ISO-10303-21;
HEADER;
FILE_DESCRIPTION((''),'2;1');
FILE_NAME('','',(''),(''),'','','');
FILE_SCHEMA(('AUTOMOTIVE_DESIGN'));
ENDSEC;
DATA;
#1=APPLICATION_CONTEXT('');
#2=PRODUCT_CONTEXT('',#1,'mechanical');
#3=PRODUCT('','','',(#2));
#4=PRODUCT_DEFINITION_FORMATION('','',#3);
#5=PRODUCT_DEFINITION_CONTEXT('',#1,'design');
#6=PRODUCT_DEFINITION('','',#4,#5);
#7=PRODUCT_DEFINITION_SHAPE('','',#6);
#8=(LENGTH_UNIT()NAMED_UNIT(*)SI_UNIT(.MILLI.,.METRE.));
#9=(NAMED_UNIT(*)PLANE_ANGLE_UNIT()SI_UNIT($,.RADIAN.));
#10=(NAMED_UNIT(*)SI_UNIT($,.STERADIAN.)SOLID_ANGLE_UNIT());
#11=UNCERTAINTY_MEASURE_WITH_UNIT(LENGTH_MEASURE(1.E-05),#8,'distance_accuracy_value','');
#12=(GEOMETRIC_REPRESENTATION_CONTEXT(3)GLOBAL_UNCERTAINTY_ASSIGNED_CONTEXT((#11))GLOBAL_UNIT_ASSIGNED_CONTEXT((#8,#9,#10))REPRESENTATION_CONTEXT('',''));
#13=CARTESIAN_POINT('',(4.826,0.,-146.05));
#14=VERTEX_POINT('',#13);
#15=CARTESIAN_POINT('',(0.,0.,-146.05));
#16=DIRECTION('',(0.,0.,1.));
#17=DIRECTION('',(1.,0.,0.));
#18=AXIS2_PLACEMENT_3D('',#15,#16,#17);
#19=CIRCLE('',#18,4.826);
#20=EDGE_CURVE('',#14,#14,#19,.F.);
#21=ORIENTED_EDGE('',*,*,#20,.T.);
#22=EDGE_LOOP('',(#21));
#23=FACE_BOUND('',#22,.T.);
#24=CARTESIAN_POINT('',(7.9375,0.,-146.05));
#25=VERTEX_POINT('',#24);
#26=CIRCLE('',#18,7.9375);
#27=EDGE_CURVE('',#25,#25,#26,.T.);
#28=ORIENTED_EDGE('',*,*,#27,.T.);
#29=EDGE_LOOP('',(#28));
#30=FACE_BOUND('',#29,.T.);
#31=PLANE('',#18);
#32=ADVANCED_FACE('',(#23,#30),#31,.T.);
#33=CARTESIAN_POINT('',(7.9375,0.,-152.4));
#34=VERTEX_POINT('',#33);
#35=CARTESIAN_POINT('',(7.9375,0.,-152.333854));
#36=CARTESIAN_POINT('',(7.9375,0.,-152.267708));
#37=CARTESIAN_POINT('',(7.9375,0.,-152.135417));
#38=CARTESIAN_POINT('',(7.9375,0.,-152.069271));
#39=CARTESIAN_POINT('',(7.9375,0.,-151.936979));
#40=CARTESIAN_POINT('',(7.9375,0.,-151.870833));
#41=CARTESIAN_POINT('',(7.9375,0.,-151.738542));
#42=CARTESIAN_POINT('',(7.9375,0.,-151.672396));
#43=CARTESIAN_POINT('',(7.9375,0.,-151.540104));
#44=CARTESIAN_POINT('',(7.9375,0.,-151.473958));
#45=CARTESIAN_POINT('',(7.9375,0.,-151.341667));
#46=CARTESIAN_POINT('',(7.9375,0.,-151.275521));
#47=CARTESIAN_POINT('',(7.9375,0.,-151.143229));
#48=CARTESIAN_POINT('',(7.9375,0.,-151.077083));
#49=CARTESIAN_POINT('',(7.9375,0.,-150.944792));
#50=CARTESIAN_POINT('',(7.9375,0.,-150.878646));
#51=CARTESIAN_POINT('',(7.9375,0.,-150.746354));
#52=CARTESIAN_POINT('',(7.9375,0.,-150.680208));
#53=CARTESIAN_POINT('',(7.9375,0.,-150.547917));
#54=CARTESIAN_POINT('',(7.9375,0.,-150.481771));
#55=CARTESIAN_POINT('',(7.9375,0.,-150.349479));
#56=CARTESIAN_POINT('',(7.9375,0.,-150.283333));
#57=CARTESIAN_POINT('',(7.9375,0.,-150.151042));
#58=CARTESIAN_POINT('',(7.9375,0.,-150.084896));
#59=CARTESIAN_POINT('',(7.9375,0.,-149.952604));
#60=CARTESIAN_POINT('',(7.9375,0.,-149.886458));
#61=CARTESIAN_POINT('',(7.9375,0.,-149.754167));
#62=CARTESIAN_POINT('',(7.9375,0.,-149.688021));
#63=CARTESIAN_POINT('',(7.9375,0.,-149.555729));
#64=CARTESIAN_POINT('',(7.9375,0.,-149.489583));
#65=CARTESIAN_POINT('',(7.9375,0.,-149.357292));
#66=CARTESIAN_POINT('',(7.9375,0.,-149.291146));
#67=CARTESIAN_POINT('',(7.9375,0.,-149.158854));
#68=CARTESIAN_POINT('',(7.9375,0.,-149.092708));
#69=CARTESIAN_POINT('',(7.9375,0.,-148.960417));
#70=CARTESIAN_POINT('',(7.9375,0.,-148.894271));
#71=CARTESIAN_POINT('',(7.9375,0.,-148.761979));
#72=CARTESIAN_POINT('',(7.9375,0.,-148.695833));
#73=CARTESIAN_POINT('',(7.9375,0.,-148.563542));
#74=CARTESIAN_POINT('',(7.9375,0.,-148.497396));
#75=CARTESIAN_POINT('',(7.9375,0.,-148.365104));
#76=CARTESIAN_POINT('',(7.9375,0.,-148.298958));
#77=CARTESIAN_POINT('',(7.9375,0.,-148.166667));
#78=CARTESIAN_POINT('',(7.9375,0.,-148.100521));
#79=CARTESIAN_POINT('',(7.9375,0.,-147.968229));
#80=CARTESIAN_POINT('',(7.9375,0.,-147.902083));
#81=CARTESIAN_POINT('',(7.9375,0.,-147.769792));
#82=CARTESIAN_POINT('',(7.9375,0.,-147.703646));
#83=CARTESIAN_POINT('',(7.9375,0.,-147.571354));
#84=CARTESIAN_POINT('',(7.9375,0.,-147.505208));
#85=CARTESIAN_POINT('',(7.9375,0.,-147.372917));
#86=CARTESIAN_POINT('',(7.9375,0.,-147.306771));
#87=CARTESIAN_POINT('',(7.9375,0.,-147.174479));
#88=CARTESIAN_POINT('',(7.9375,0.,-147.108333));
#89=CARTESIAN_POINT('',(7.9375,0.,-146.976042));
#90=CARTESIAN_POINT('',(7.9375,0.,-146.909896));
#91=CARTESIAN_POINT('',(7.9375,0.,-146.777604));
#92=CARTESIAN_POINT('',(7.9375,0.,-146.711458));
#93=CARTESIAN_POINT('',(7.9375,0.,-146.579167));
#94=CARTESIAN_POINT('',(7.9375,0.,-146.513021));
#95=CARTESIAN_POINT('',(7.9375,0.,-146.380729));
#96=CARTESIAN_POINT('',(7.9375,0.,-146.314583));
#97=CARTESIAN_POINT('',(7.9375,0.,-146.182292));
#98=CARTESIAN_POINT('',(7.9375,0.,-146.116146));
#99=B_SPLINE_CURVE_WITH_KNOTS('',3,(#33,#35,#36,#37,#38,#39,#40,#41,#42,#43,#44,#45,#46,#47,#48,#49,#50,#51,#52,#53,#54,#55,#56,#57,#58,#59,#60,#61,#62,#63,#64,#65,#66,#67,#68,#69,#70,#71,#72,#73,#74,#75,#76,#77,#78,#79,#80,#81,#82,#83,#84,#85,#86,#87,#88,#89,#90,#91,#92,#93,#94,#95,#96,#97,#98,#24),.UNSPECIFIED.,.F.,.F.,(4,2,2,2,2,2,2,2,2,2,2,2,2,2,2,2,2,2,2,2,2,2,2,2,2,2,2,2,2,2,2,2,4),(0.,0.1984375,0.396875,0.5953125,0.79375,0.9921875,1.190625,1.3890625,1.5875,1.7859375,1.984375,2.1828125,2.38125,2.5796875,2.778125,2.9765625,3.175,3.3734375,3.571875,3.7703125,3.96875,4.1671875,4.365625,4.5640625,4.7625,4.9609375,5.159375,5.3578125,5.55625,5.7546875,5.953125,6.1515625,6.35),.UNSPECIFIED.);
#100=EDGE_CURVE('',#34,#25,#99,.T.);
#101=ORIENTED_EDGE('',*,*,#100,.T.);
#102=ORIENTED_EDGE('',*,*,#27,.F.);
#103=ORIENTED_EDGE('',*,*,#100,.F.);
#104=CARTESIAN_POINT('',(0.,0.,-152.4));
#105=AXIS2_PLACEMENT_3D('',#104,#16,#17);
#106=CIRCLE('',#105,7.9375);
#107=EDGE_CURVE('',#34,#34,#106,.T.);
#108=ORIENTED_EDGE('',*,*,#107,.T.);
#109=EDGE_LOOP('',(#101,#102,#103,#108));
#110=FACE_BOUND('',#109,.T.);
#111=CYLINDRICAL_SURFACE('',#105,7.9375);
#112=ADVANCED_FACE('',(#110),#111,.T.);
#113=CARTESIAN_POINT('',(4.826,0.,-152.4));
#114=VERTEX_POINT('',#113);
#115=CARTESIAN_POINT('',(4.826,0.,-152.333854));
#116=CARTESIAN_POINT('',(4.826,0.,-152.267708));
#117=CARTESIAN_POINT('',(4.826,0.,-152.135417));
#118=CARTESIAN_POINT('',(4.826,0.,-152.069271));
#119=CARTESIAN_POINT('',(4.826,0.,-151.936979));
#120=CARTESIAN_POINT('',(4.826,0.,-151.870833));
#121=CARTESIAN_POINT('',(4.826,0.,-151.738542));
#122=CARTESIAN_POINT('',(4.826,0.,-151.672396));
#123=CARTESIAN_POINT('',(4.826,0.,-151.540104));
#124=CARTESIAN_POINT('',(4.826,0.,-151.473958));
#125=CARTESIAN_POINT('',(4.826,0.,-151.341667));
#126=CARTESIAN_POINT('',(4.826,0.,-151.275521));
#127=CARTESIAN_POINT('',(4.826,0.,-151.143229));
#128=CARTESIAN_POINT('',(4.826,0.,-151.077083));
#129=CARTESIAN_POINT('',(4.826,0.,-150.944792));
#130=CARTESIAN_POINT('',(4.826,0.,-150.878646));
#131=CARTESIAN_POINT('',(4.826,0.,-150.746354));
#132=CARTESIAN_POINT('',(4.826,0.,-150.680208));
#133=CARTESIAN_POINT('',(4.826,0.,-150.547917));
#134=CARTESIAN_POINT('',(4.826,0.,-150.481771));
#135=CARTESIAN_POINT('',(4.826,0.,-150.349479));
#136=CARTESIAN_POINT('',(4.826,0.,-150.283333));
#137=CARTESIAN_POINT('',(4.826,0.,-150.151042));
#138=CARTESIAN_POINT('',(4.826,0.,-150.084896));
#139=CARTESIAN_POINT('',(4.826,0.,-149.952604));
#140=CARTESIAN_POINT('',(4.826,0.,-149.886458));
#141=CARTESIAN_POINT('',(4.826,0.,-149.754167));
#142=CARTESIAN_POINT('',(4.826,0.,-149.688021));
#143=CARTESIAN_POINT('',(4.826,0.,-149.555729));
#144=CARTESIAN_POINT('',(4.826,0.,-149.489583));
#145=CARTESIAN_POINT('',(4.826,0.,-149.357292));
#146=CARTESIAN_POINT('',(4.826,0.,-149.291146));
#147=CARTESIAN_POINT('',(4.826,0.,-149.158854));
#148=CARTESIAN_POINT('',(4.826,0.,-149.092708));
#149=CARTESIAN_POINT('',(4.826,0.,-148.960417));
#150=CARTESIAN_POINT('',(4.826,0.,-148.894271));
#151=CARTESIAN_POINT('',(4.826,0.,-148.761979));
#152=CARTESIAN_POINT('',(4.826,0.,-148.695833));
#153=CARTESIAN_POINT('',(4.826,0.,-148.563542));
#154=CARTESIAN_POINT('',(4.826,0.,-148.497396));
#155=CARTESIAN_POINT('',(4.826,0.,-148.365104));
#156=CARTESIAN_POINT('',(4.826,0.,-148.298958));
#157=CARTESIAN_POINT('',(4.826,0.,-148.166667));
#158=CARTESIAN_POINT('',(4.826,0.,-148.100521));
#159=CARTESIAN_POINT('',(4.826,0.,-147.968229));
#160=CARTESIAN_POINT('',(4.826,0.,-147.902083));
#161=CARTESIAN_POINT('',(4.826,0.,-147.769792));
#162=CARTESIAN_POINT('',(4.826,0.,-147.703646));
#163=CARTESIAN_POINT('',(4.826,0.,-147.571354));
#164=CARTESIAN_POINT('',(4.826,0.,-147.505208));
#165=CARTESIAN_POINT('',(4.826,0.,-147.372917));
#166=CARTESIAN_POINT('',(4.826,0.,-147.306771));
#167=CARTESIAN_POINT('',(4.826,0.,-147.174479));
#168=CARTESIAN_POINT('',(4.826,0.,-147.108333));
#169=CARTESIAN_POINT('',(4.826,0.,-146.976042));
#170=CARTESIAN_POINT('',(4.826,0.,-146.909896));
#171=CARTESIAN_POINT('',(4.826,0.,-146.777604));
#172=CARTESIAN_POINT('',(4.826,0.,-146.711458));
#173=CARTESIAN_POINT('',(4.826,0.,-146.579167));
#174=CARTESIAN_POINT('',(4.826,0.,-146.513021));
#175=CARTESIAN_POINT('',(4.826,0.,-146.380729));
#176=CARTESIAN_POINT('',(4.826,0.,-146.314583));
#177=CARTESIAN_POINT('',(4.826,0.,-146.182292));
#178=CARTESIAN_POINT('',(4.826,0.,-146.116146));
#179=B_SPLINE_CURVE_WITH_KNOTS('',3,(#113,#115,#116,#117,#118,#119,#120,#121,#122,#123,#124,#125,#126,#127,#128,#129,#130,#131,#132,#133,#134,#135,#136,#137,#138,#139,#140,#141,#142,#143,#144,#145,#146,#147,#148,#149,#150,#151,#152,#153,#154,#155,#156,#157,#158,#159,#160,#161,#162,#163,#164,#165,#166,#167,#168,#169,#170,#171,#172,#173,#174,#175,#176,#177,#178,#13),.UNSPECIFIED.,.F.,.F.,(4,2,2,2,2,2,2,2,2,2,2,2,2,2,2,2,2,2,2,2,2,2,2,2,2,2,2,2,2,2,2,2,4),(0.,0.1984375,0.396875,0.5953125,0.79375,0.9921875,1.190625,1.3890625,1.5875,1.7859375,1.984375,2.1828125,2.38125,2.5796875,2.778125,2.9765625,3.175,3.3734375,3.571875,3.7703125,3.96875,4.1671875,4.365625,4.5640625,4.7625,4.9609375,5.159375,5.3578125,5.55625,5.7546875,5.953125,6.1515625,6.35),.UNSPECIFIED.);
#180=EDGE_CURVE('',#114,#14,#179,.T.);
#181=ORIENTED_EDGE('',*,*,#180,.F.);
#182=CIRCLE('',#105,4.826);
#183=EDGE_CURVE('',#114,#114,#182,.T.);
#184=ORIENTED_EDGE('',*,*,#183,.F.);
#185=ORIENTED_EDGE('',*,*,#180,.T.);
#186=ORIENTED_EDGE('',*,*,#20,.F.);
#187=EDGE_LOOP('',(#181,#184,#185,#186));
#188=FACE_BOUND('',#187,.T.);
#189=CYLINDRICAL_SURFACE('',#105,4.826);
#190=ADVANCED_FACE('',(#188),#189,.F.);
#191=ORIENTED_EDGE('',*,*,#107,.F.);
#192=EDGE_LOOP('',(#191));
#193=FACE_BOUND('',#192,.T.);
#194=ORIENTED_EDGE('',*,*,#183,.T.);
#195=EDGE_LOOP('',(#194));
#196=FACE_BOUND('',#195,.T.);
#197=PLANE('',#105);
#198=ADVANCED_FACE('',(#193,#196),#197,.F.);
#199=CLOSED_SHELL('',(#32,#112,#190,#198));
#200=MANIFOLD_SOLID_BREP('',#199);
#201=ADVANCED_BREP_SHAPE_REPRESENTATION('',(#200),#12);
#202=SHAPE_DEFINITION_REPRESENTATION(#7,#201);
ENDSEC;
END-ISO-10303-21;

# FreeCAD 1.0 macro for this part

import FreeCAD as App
import Part
import Sketcher

V = App.Vector
Q = App.Units.Quantity

doc = App.newDocument("Part")
body = doc.addObject("PartDesign::Body", "Body")

sketch1 = body.newObject("Sketcher::SketchObject", "Sketch")
sketch1.AttachmentSupport = (doc.getObject("XY_Plane"), [""])
sketch1.MapMode = "FlatFace"
sketch1.addGeometry([
    Part.Circle(V(0, 0, 0), V(0, 0, 1), 7.9375),
    Part.Circle(V(0, 0, 0), V(0, 0, 1), 4.826),
], False)
sketch1.addConstraint([
    Sketcher.Constraint("Coincident", 0, 3, -1, 1),
    Sketcher.Constraint("Coincident", 1, 3, -1, 1),
    Sketcher.Constraint("Diameter", 1, Q("0.38 in")),
    Sketcher.Constraint("Diameter", 0, Q("0.625 in")),
])
pad1 = body.newObject("PartDesign::Pad", "Pad")
pad1.Profile = sketch1
pad1.Type = "TwoLengths"
pad1.Length = Q("6 in")
pad1.Length2 = Q("6 in")

sketch2 = body.newObject("Sketcher::SketchObject", "Sketch001")
sketch2.AttachmentSupport = (doc.getObject("XY_Plane"), [""])
sketch2.MapMode = "FlatFace"
sketch2.AttachmentOffset = App.Placement(V(0, 0, 6 * 25.4), App.Rotation())
sketch2.addGeometry(Part.Circle(V(0, 0, 0), V(0, 0, 1), 7.9375), False)
sketch2.addConstraint([
    Sketcher.Constraint("Coincident", 0, 3, -1, 1),
    Sketcher.Constraint("Diameter", 0, Q("0.625 in")),
])
pocket1 = body.newObject("PartDesign::Pocket", "Pocket")
pocket1.Profile = sketch2
pocket1.Length = Q("11.75 in")

doc.recompute()
